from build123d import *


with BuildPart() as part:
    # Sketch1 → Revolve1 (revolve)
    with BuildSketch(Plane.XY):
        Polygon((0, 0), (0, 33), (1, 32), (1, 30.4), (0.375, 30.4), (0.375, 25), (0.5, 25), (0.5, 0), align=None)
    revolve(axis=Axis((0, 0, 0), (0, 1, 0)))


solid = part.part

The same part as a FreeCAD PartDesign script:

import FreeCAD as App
import Part
import Sketcher

V = App.Vector
Q = App.Units.Quantity

doc = App.newDocument("Part")
body = doc.addObject("PartDesign::Body", "Body")

# Sketch on XY plane
sketch1 = body.newObject("Sketcher::SketchObject", "Sketch")
sketch1.AttachmentSupport = (doc.getObject("XY_Plane"), [""])
sketch1.MapMode = "FlatFace"
sketch1.addGeometry([
    Part.LineSegment(V(0, 33, 0), V(0, 0, 0)),  # 0
    Part.LineSegment(V(0, 0, 0), V(0.5, 0, 0)),  # 1
    Part.LineSegment(V(0.5, 0, 0), V(0.5, 25, 0)),  # 2
    Part.LineSegment(V(0.5, 25, 0), V(0.38, 25, 0)),  # 3
    Part.LineSegment(V(0.38, 25, 0), V(0.38, 30.4, 0)),  # 4
    Part.LineSegment(V(0.38, 30.4, 0), V(1, 30.4, 0)),  # 5
    Part.LineSegment(V(1, 30.4, 0), V(1, 32, 0)),  # 6
    Part.LineSegment(V(1, 32, 0), V(0, 33, 0)),  # 7
], False)
sketch1.addConstraint([
    Sketcher.Constraint("Coincident", 0, 2, 1, 1),
    Sketcher.Constraint("Coincident", 1, 2, 2, 1),
    Sketcher.Constraint("Coincident", 2, 2, 3, 1),
    Sketcher.Constraint("Coincident", 3, 2, 4, 1),
    Sketcher.Constraint("Coincident", 4, 2, 5, 1),
    Sketcher.Constraint("Coincident", 5, 2, 6, 1),
    Sketcher.Constraint("Coincident", 6, 2, 7, 1),
    Sketcher.Constraint("Coincident", 7, 2, 0, 1),
    Sketcher.Constraint("Vertical", 0),
    Sketcher.Constraint("Horizontal", 1),
    Sketcher.Constraint("Vertical", 2),
    Sketcher.Constraint("Horizontal", 3),
    Sketcher.Constraint("Vertical", 4),
    Sketcher.Constraint("Horizontal", 5),
    Sketcher.Constraint("Vertical", 6),
    Sketcher.Constraint("Coincident", 0, 2, -1, 1),
    Sketcher.Constraint("DistanceY", 0, 2, 0, 1, Q("33 mm")),
    Sketcher.Constraint("DistanceY", 2, 1, 2, 2, Q("25 mm")),
    Sketcher.Constraint("Angle", 7, Q("135 deg")),
    Sketcher.Constraint("DistanceX", 1, 1, 1, 2, Q("0.5 mm")),
    Sketcher.Constraint("DistanceY", 4, 1, 4, 2, Q("5.4 mm")),
    Sketcher.Constraint("DistanceY", 6, 1, 6, 2, Q("1.6 mm")),
    Sketcher.Constraint("DistanceX", 3, 2, 3, 1, Q("0.125 mm")),
])
revolution = body.newObject("PartDesign::Revolution", "Revolution")
revolution.Profile = sketch1
revolution.ReferenceAxis = (sketch1, ["V_Axis"])
revolution.Angle = 360

doc.recompute()
